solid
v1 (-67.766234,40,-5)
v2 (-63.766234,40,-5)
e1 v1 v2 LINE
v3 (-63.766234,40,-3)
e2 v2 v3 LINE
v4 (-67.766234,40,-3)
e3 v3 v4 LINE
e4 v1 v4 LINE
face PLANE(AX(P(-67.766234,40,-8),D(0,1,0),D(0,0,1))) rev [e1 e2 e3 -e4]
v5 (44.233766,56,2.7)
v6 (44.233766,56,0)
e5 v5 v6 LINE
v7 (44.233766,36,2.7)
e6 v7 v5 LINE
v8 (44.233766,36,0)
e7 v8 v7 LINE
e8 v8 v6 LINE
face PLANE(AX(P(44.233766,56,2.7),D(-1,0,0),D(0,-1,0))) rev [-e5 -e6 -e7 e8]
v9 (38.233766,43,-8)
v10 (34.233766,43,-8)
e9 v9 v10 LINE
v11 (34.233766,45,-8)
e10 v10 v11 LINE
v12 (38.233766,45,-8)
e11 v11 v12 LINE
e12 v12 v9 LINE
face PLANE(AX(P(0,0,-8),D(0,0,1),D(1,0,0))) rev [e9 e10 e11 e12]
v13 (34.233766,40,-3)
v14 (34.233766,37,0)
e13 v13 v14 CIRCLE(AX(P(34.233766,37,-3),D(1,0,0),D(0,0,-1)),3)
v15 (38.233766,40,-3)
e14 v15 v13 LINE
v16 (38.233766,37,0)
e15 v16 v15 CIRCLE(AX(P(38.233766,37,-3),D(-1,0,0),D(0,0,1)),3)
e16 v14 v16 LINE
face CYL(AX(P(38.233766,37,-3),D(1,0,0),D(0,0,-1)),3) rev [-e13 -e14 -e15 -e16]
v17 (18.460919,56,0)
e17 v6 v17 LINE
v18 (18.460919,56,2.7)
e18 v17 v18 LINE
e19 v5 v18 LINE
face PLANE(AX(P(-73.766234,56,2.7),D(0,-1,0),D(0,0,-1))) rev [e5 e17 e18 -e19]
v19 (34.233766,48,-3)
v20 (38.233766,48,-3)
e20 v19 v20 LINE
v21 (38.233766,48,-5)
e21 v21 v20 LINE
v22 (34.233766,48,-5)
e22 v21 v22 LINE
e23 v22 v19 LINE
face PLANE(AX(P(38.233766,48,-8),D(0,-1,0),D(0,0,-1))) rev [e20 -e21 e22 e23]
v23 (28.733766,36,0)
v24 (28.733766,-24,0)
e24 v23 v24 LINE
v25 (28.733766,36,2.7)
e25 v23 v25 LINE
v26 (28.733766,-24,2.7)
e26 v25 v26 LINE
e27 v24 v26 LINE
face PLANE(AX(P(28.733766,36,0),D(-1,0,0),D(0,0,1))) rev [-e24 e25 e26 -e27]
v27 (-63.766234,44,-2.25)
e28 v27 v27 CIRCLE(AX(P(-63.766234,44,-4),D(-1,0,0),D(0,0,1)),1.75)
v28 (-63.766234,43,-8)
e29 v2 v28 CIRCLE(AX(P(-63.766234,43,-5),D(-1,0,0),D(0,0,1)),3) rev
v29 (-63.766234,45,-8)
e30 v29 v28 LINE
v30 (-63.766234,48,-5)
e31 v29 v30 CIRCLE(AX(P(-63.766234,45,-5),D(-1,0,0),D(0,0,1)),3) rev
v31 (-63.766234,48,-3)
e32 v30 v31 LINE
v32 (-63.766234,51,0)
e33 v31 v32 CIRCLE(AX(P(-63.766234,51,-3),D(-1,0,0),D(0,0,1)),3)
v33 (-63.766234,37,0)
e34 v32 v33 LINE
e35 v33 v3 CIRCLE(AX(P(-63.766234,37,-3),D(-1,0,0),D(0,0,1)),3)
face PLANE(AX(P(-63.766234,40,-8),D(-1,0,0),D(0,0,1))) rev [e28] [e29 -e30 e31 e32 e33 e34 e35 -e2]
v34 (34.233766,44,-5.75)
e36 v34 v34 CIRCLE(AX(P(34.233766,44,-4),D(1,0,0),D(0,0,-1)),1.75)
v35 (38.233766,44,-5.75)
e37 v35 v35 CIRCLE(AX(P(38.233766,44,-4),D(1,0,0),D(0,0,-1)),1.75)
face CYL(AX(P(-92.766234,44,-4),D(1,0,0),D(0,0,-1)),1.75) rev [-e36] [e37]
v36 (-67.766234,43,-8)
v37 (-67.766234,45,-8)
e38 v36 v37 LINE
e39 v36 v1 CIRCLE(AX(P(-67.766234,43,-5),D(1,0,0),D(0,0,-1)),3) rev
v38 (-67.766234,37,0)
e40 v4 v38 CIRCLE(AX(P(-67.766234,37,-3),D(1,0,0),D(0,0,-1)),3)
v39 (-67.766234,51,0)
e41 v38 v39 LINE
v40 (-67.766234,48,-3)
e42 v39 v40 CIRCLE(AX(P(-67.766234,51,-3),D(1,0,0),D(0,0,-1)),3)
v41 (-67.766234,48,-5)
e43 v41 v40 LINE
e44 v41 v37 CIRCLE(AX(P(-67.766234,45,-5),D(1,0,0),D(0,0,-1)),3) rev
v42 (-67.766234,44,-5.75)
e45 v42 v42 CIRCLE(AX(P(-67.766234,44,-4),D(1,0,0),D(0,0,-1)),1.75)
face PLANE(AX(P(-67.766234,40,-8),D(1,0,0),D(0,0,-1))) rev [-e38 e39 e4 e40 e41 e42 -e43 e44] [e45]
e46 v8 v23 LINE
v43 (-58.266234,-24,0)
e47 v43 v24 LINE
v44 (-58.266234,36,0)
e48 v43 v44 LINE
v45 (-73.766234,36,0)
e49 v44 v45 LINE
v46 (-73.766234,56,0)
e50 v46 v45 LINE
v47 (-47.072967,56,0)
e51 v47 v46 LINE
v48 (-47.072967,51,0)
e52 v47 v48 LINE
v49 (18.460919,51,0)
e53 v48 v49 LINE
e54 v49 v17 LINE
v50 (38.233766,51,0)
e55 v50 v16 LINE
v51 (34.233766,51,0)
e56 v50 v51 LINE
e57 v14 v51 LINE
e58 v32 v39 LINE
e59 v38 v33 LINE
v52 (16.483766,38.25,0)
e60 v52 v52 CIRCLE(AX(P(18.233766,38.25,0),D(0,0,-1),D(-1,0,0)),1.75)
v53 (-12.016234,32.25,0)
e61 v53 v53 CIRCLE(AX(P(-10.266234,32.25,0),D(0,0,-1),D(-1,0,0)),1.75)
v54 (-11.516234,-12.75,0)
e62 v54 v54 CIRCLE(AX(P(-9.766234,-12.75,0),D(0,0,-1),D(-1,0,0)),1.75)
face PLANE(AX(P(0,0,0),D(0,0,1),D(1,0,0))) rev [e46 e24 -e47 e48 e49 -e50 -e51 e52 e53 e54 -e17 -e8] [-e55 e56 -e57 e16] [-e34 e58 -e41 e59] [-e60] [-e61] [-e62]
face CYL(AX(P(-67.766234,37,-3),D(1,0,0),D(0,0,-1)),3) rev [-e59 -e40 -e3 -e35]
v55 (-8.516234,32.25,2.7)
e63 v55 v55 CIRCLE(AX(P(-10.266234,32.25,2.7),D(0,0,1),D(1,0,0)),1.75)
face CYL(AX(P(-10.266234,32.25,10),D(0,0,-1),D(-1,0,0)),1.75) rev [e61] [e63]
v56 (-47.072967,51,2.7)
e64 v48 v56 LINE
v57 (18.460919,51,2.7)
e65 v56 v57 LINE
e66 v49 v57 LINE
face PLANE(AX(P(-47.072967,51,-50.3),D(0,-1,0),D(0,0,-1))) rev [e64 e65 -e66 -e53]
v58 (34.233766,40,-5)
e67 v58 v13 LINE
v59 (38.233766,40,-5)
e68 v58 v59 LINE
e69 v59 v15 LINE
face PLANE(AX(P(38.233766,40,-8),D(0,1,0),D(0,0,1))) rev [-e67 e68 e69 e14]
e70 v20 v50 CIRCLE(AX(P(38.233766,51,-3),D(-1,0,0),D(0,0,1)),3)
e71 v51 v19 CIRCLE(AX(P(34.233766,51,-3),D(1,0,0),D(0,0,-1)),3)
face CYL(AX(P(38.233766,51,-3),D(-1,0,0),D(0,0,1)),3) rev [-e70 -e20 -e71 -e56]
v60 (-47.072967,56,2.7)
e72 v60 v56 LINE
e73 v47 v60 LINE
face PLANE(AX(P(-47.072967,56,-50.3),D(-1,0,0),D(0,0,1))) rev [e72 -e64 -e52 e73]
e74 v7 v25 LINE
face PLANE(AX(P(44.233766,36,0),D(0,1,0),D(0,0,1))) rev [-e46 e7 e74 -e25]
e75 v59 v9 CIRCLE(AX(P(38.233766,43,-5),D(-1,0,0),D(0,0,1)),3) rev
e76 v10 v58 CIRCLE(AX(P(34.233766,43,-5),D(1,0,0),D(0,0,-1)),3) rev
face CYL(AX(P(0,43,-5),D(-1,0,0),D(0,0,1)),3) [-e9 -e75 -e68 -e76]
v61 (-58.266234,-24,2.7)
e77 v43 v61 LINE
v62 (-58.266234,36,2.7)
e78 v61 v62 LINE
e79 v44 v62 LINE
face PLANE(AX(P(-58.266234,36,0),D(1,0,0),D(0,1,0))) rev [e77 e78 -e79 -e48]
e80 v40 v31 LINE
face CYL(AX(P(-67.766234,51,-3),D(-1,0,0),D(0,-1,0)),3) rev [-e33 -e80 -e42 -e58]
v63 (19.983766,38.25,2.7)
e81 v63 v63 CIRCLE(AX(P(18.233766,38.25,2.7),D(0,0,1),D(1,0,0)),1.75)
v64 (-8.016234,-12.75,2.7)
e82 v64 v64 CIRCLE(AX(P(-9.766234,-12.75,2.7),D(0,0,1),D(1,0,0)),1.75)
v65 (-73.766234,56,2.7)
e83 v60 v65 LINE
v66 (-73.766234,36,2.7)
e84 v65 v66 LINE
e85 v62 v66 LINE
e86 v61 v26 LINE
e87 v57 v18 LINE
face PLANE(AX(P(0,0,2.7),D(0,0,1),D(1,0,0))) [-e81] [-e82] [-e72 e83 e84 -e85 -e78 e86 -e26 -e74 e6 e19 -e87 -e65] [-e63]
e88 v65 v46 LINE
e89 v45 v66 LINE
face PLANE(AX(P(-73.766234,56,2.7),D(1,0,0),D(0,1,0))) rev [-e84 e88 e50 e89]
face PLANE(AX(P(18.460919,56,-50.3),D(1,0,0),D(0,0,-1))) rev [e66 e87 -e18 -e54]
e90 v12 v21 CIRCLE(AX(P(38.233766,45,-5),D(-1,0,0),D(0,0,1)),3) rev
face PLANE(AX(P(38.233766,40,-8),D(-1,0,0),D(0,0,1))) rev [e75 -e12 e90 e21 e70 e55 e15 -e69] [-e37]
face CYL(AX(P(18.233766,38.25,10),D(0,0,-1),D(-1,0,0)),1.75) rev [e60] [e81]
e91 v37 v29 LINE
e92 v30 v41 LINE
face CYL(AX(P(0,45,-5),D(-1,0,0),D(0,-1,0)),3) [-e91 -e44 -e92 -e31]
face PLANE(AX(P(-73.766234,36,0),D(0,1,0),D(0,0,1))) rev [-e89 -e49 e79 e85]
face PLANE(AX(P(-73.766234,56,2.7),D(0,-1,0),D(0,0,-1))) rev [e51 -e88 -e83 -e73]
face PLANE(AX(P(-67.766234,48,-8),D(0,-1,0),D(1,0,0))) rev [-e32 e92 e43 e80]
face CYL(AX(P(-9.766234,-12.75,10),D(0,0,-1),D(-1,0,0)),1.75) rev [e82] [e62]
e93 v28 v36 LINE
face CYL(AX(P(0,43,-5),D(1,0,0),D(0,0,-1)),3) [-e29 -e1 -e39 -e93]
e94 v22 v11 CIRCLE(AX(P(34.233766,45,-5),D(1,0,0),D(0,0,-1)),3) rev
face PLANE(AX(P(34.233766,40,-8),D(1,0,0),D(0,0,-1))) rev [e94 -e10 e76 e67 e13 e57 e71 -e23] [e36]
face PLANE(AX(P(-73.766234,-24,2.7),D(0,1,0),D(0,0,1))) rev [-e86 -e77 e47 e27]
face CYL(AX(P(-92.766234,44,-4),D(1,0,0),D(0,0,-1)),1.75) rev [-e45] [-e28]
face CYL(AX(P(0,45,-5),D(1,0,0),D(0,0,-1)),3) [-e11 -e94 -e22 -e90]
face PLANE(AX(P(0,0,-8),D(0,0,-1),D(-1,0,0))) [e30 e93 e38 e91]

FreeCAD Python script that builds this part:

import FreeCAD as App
import Part
import Sketcher
Q = App.Units.Quantity


def edges_at(feature, points):
    """Names of the edges that pass closest to the given points."""
    edges = feature.Shape.Edges
    near = lambda p: min(range(len(edges)), key=lambda i: edges[i].distToShape(Part.Vertex(*p))[0])
    return sorted({f"Edge{near(p) + 1}" for p in points})


def add_polygon(sketch, points):
    """Adds a closed chain of lines whose ends are joined by coincident constraints."""
    first, n = sketch.GeometryCount, len(points)
    for a, b in zip(points, points[1:] + points[:1]):
        sketch.addGeometry(Part.LineSegment(App.Vector(*a, 0), App.Vector(*b, 0)), False)
    for i in range(n):
        sketch.addConstraint(Sketcher.Constraint("Coincident", first + i, 2, first + (i + 1) % n, 1))

doc = App.newDocument("Part")
body = doc.addObject("PartDesign::Body", "Body")

# Sketch on XY plane
sketch1 = body.newObject("Sketcher::SketchObject", "Sketch")
sketch1.AttachmentSupport = (doc.getObject("XY_Plane"), [""])
sketch1.MapMode = "FlatFace"
add_polygon(sketch1, [(-74, 56), (-74, -24), (44, -24), (44, 56)])  # lines 0-3
sketch1.addConstraint(Sketcher.Constraint("Vertical", 0))
sketch1.addConstraint(Sketcher.Constraint("Horizontal", 1))
sketch1.addConstraint(Sketcher.Constraint("Vertical", 2))
sketch1.addConstraint(Sketcher.Constraint("Horizontal", 3))
sketch1.addConstraint(Sketcher.Constraint("DistanceX", 1, 1, 1, 2, Q("118 mm")))
sketch1.addConstraint(Sketcher.Constraint("DistanceY", 0, 2, 0, 1, Q("80 mm")))
sketch1.addConstraint(Sketcher.Constraint("DistanceY", 0, 2, -1, 1, Q("24 mm")))
sketch1.addConstraint(Sketcher.Constraint("DistanceX", 0, 2, -1, 1, Q("73.766234 mm")))
pad1 = body.newObject("PartDesign::Pad", "Pad")
pad1.Profile = sketch1
pad1.Length = 2.7

# Sketch on XY plane
sketch2 = body.newObject("Sketcher::SketchObject", "Sketch001")
sketch2.AttachmentSupport = (doc.getObject("XY_Plane"), [""])
sketch2.MapMode = "FlatFace"
sketch2.AttachmentOffset = App.Placement(App.Vector(0, 0, 2.7), App.Rotation())
add_polygon(sketch2, [(-74, 36), (-74, -24), (-68, -24), (-68, 36)])  # lines 0-3
add_polygon(sketch2, [(39, 36), (39, -24), (44, -24), (44, 36)])  # lines 4-7
sketch2.addConstraint(Sketcher.Constraint("Vertical", 0))
sketch2.addConstraint(Sketcher.Constraint("Horizontal", 1))
sketch2.addConstraint(Sketcher.Constraint("Vertical", 2))
sketch2.addConstraint(Sketcher.Constraint("Horizontal", 3))
sketch2.addConstraint(Sketcher.Constraint("Vertical", 4))
sketch2.addConstraint(Sketcher.Constraint("Horizontal", 5))
sketch2.addConstraint(Sketcher.Constraint("Vertical", 6))
sketch2.addConstraint(Sketcher.Constraint("Horizontal", 7))
sketch2.addConstraint(Sketcher.Constraint("Horizontal", 1, 2, 4, 2))
sketch2.addConstraint(Sketcher.Constraint("Horizontal", 3, 2, 6, 2))
sketch2.addConstraint(Sketcher.Constraint("Equal", 3, 5))
sketch2.addConstraint(Sketcher.Constraint("DistanceY", 0, 2, 0, 1, Q("60 mm")))
sketch2.addConstraint(Sketcher.Constraint("DistanceX", 1, 1, 1, 2, Q("5.5 mm")))
sketch2.addConstraint(Sketcher.Constraint("DistanceY", 0, 2, -1, 1, Q("24 mm")))
sketch2.addConstraint(Sketcher.Constraint("DistanceX", 1, 2, 4, 2, Q("107 mm")))
sketch2.addConstraint(Sketcher.Constraint("DistanceX", 0, 2, -1, 1, Q("73.766234 mm")))
pocket1 = body.newObject("PartDesign::Pocket", "Pocket")
pocket1.Profile = sketch2
pocket1.Length = 2.7

# Sketch on XY plane
sketch3 = body.newObject("Sketcher::SketchObject", "Sketch002")
sketch3.AttachmentSupport = (doc.getObject("XY_Plane"), [""])
sketch3.MapMode = "FlatFace"
sketch3.AttachmentOffset = App.Placement(App.Vector(0, 0, 2.7), App.Rotation())
add_polygon(sketch3, [(-68, 36), (-68, -24), (-58, -24), (-58, 36)])  # lines 0-3
add_polygon(sketch3, [(29, 36), (29, -24), (39, -24), (39, 36)])  # lines 4-7
sketch3.addConstraint(Sketcher.Constraint("Vertical", 0))
sketch3.addConstraint(Sketcher.Constraint("Horizontal", 1))
sketch3.addConstraint(Sketcher.Constraint("Vertical", 2))
sketch3.addConstraint(Sketcher.Constraint("Horizontal", 3))
sketch3.addConstraint(Sketcher.Constraint("Vertical", 4))
sketch3.addConstraint(Sketcher.Constraint("Horizontal", 5))
sketch3.addConstraint(Sketcher.Constraint("Vertical", 6))
sketch3.addConstraint(Sketcher.Constraint("Horizontal", 7))
sketch3.addConstraint(Sketcher.Constraint("Horizontal", 1, 2, 4, 2))
sketch3.addConstraint(Sketcher.Constraint("Horizontal", 3, 2, 6, 2))
sketch3.addConstraint(Sketcher.Constraint("Equal", 3, 5))
sketch3.addConstraint(Sketcher.Constraint("DistanceX", 1, 1, 1, 2, Q("10 mm")))
sketch3.addConstraint(Sketcher.Constraint("DistanceY", 0, 2, 0, 1, Q("60 mm")))
sketch3.addConstraint(Sketcher.Constraint("DistanceY", 0, 2, -1, 1, Q("24 mm")))
sketch3.addConstraint(Sketcher.Constraint("DistanceX", 1, 2, 4, 2, Q("87 mm")))
sketch3.addConstraint(Sketcher.Constraint("DistanceX", 0, 2, -1, 1, Q("68.266234 mm")))
pocket2 = body.newObject("PartDesign::Pocket", "Pocket001")
pocket2.Profile = sketch3
pocket2.Length = 2.7

# Sketch on XY plane
sketch4 = body.newObject("Sketcher::SketchObject", "Sketch003")
sketch4.AttachmentSupport = (doc.getObject("XY_Plane"), [""])
sketch4.MapMode = "FlatFace"
add_polygon(sketch4, [(-63.8, 48), (-63.8, 40), (-67.8, 40), (-67.8, 48)])  # lines 0-3
add_polygon(sketch4, [(38.2, 48), (38.2, 40), (34.2, 40), (34.2, 48)])  # lines 4-7
sketch4.addConstraint(Sketcher.Constraint("Vertical", 0))
sketch4.addConstraint(Sketcher.Constraint("Horizontal", 1))
sketch4.addConstraint(Sketcher.Constraint("Vertical", 2))
sketch4.addConstraint(Sketcher.Constraint("Horizontal", 3))
sketch4.addConstraint(Sketcher.Constraint("Vertical", 4))
sketch4.addConstraint(Sketcher.Constraint("Horizontal", 5))
sketch4.addConstraint(Sketcher.Constraint("Vertical", 6))
sketch4.addConstraint(Sketcher.Constraint("Horizontal", 7))
sketch4.addConstraint(Sketcher.Constraint("Horizontal", 1, 2, 4, 2))
sketch4.addConstraint(Sketcher.Constraint("Horizontal", 3, 2, 6, 2))
sketch4.addConstraint(Sketcher.Constraint("Equal", 3, 5))
sketch4.addConstraint(Sketcher.Constraint("DistanceX", 1, 2, 1, 1, Q("4 mm")))
sketch4.addConstraint(Sketcher.Constraint("DistanceY", 0, 2, 0, 1, Q("8 mm")))
sketch4.addConstraint(Sketcher.Constraint("DistanceY", -1, 1, 0, 2, Q("40 mm")))
sketch4.addConstraint(Sketcher.Constraint("DistanceX", 0, 2, 4, 2, Q("102 mm")))
sketch4.addConstraint(Sketcher.Constraint("DistanceX", 0, 2, -1, 1, Q("63.766234 mm")))
pad2 = body.newObject("PartDesign::Pad", "Pad001")
pad2.Profile = sketch4
pad2.Length = 8
pad2.Reversed = True

# Sketch on YZ plane
sketch5 = body.newObject("Sketcher::SketchObject", "Sketch004")
sketch5.AttachmentSupport = (doc.getObject("YZ_Plane"), [""])
sketch5.MapMode = "FlatFace"
sketch5.AttachmentOffset = App.Placement(App.Vector(0, 0, 38.233766), App.Rotation())
sketch5.addGeometry(Part.Circle(App.Vector(44, -4, 0), App.Vector(0, 0, 1), 1.8), False)
sketch5.addConstraint(Sketcher.Constraint("Diameter", 0, Q("3.5 mm")))
sketch5.addConstraint(Sketcher.Constraint("DistanceX", -1, 1, 0, 3, Q("44 mm")))
sketch5.addConstraint(Sketcher.Constraint("DistanceY", 0, 3, -1, 1, Q("4 mm")))
pocket3 = body.newObject("PartDesign::Pocket", "Pocket002")
pocket3.Profile = sketch5
pocket3.Length = 131
doc.recompute()

fillet = body.newObject("PartDesign::Fillet", "Fillet")
fillet.Base = (pocket3, edges_at(pocket3, [
    (-65.766, 48, 0),
    (-65.766, 40, 0),
    (-65.766, 48, -8),
    (-65.766, 40, -8),
    (36.234, 40, 0),
    (36.234, 48, 0),
    (36.234, 40, -8),
    (36.234, 48, -8),
]))
fillet.Radius = 3

# Sketch on XY plane
sketch6 = body.newObject("Sketcher::SketchObject", "Sketch005")
sketch6.AttachmentSupport = (doc.getObject("XY_Plane"), [""])
sketch6.MapMode = "FlatFace"
sketch6.AttachmentOffset = App.Placement(App.Vector(0, 0, 2.7), App.Rotation())
add_polygon(sketch6, [(-47, 56), (-47, 51), (18, 51), (18, 56)])  # lines 0-3
sketch6.addConstraint(Sketcher.Constraint("Vertical", 0))
sketch6.addConstraint(Sketcher.Constraint("Horizontal", 1))
sketch6.addConstraint(Sketcher.Constraint("Vertical", 2))
sketch6.addConstraint(Sketcher.Constraint("Horizontal", 3))
sketch6.addConstraint(Sketcher.Constraint("DistanceY", 0, 2, 0, 1, Q("5 mm")))
sketch6.addConstraint(Sketcher.Constraint("DistanceY", -1, 1, 0, 2, Q("51 mm")))
sketch6.addConstraint(Sketcher.Constraint("DistanceX", 1, 1, 1, 2, Q("65.533885 mm")))
sketch6.addConstraint(Sketcher.Constraint("DistanceX", -1, 1, 1, 2, Q("18.460919 mm")))
pocket4 = body.newObject("PartDesign::Pocket", "Pocket003")
pocket4.Profile = sketch6
pocket4.Length = 53

# Sketch on XY plane
sketch7 = body.newObject("Sketcher::SketchObject", "Sketch006")
sketch7.AttachmentSupport = (doc.getObject("XY_Plane"), [""])
sketch7.MapMode = "FlatFace"
sketch7.addGeometry(Part.Circle(App.Vector(-9.8, -12.8, 0), App.Vector(0, 0, 1), 1.8), False)
sketch7.addGeometry(Part.Circle(App.Vector(-10.3, 32.2, 0), App.Vector(0, 0, 1), 1.8), False)
sketch7.addGeometry(Part.Circle(App.Vector(18.2, 38.2, 0), App.Vector(0, 0, 1), 1.8), False)
sketch7.addConstraint(Sketcher.Constraint("Equal", 0, 1))
sketch7.addConstraint(Sketcher.Constraint("Equal", 1, 2))
sketch7.addConstraint(Sketcher.Constraint("Diameter", 0, Q("3.5 mm")))
sketch7.addConstraint(Sketcher.Constraint("DistanceY", 0, 3, 1, 3, Q("45 mm")))
sketch7.addConstraint(Sketcher.Constraint("DistanceY", 1, 3, 2, 3, Q("6 mm")))
sketch7.addConstraint(Sketcher.Constraint("DistanceX", 0, 3, 2, 3, Q("28 mm")))
sketch7.addConstraint(Sketcher.Constraint("DistanceX", 1, 3, 0, 3, Q("0.5 mm")))
sketch7.addConstraint(Sketcher.Constraint("DistanceY", 0, 3, -1, 1, Q("12.75 mm")))
sketch7.addConstraint(Sketcher.Constraint("DistanceX", 0, 3, -1, 1, Q("9.766234 mm")))
pocket5 = body.newObject("PartDesign::Pocket", "Pocket004")
pocket5.Profile = sketch7
pocket5.Length = 10
pocket5.Reversed = True

doc.recompute()
